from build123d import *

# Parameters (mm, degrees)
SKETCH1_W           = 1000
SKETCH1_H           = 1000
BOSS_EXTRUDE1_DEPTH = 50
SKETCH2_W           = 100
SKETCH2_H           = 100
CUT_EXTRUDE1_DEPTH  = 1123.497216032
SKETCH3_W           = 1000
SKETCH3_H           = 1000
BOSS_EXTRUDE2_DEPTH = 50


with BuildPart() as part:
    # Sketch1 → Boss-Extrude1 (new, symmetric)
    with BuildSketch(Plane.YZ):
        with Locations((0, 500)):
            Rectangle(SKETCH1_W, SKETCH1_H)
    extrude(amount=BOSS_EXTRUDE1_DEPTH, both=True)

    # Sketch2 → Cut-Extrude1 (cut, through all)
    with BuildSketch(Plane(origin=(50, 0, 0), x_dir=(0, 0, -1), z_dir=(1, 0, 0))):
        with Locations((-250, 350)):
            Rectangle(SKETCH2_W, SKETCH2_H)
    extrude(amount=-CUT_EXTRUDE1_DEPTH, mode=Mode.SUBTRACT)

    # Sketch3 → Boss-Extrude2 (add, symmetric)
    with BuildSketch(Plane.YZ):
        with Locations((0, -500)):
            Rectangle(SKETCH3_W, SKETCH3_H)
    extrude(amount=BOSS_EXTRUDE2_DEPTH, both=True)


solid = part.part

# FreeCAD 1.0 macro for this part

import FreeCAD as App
import Part
import Sketcher

V = App.Vector
Q = App.Units.Quantity


def add_polygon(sketch, points):
    """Adds a closed chain of lines whose ends are joined by coincident constraints."""
    first, n = sketch.GeometryCount, len(points)
    for a, b in zip(points, points[1:] + points[:1]):
        sketch.addGeometry(Part.LineSegment(App.Vector(*a, 0), App.Vector(*b, 0)), False)
    for i in range(n):
        sketch.addConstraint(Sketcher.Constraint("Coincident", first + i, 2, first + (i + 1) % n, 1))

doc = App.newDocument("Part")
body = doc.addObject("PartDesign::Body", "Body")

# Sketch on YZ plane
sketch1 = body.newObject("Sketcher::SketchObject", "Sketch")
sketch1.AttachmentSupport = (doc.getObject("YZ_Plane"), [""])
sketch1.MapMode = "FlatFace"
add_polygon(sketch1, [(-500, 1000), (-500, 0), (500, 0), (500, 1000)])  # lines 0-3
sketch1.addConstraint(Sketcher.Constraint("Vertical", 0))
sketch1.addConstraint(Sketcher.Constraint("Horizontal", 1))
sketch1.addConstraint(Sketcher.Constraint("Vertical", 2))
sketch1.addConstraint(Sketcher.Constraint("Horizontal", 3))
sketch1.addConstraint(Sketcher.Constraint("Symmetric", 0, 2, 1, 2, -1, 1))
sketch1.addConstraint(Sketcher.Constraint("Equal", 3, 0))
sketch1.addConstraint(Sketcher.Constraint("DistanceX", 1, 1, 1, 2, Q("1000 mm")))
pad1 = body.newObject("PartDesign::Pad", "Pad")
pad1.Profile = sketch1
pad1.Length = 100
pad1.Midplane = True

# Sketch on YZ plane
sketch2 = body.newObject("Sketcher::SketchObject", "Sketch001")
sketch2.AttachmentSupport = (doc.getObject("YZ_Plane"), [""])
sketch2.MapMode = "FlatFace"
sketch2.AttachmentOffset = App.Placement(V(0, 0, 50), App.Rotation())
add_polygon(sketch2, [(400, 300), (300, 300), (300, 200), (400, 200)])  # lines 0-3
sketch2.addConstraint(Sketcher.Constraint("Horizontal", 0))
sketch2.addConstraint(Sketcher.Constraint("Vertical", 1))
sketch2.addConstraint(Sketcher.Constraint("Horizontal", 2))
sketch2.addConstraint(Sketcher.Constraint("Vertical", 3))
sketch2.addConstraint(Sketcher.Constraint("Equal", 2, 1))
sketch2.addConstraint(Sketcher.Constraint("DistanceX", 0, 2, 0, 1, Q("100 mm")))
sketch2.addConstraint(Sketcher.Constraint("DistanceX", -1, 1, 0, 2, Q("300 mm")))
sketch2.addConstraint(Sketcher.Constraint("DistanceY", -1, 1, 0, 2, Q("300 mm")))
pocket1 = body.newObject("PartDesign::Pocket", "Pocket")
pocket1.Profile = sketch2
pocket1.Type = "ThroughAll"

# Sketch on YZ plane
sketch3 = body.newObject("Sketcher::SketchObject", "Sketch002")
sketch3.AttachmentSupport = (doc.getObject("YZ_Plane"), [""])
sketch3.MapMode = "FlatFace"
add_polygon(sketch3, [(-500, 0), (-500, -1000), (500, -1000), (500, 0)])  # lines 0-3
sketch3.addConstraint(Sketcher.Constraint("Vertical", 0))
sketch3.addConstraint(Sketcher.Constraint("Horizontal", 1))
sketch3.addConstraint(Sketcher.Constraint("Vertical", 2))
sketch3.addConstraint(Sketcher.Constraint("Horizontal", 3))
sketch3.addConstraint(Sketcher.Constraint("Symmetric", 2, 2, 3, 2, -1, 1))
sketch3.addConstraint(Sketcher.Constraint("Equal", 3, 0))
sketch3.addConstraint(Sketcher.Constraint("DistanceX", 1, 1, 1, 2, Q("1000 mm")))
pad2 = body.newObject("PartDesign::Pad", "Pad001")
pad2.Profile = sketch3
pad2.Length = 100
pad2.Midplane = True

doc.recompute()
